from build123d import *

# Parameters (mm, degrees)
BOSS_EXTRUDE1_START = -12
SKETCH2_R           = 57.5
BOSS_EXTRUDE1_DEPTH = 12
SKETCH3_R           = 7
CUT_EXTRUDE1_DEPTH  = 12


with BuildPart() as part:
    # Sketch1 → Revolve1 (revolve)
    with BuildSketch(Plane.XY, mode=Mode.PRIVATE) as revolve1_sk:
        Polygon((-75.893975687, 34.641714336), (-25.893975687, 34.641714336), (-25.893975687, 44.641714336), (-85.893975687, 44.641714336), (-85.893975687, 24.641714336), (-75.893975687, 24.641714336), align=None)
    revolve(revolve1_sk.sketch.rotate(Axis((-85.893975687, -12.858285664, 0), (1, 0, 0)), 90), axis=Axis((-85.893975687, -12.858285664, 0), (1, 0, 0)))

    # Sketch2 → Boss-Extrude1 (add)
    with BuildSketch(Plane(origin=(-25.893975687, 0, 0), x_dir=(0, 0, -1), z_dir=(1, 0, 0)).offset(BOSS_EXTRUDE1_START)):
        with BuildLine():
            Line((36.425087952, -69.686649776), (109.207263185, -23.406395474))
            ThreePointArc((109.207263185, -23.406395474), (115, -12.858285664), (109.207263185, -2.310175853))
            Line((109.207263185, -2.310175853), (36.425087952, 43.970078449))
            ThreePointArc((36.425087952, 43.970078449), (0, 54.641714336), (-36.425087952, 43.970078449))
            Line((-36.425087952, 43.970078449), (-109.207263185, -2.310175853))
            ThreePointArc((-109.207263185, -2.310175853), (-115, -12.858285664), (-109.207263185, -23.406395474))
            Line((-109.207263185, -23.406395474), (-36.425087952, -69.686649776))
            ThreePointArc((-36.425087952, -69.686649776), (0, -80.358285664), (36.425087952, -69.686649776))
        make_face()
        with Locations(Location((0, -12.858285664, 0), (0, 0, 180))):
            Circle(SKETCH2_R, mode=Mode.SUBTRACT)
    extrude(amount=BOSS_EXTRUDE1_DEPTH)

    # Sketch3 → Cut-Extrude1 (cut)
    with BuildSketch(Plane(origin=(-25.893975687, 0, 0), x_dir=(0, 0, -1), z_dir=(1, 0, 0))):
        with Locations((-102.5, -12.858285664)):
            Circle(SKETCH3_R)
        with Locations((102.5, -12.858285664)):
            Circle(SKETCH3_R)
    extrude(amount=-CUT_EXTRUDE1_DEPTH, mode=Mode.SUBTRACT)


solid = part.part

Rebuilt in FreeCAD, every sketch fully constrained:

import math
import FreeCAD as App
import Part
import Sketcher
from FreeCAD import Vector

doc = App.newDocument("Part")
params = doc.addObject("Spreadsheet::Sheet", "Params")
for row, (alias, value) in enumerate([
    ("sketch1_width", "50 mm"),
    ("sketch1_width2", "60 mm"),
    ("revolution_angle", "360 deg"),
    ("sketch2_diameter", "115 mm"),
    ("sketch2_radius", "12.5 mm"),
    ("sketch2_radius2", "67.5 mm"),
    ("pad1_length", "12 mm"),
    ("sketch3_diameter", "14 mm"),
    ("pocket1_length", "12 mm"),
], start=1):
    params.set(f"A{row}", alias)
    params.set(f"B{row}", "=" + value)
    params.setAlias(f"B{row}", alias)

body = doc.addObject("PartDesign::Body", "Body")

# Sketch on XY plane
sketch1 = body.newObject("Sketcher::SketchObject", "Sketch")
sketch1.AttachmentSupport = (doc.getObject("XY_Plane"), [""])
sketch1.MapMode = "FlatFace"
sketch1.addGeometry(Part.LineSegment(Vector(-76, 35, 0), Vector(-26, 35, 0)), False)
sketch1.addGeometry(Part.LineSegment(Vector(-26, 35, 0), Vector(-26, 45, 0)), False)
sketch1.addGeometry(Part.LineSegment(Vector(-26, 45, 0), Vector(-86, 45, 0)), False)
sketch1.addGeometry(Part.LineSegment(Vector(-86, 45, 0), Vector(-86, 25, 0)), False)
sketch1.addGeometry(Part.LineSegment(Vector(-86, 25, 0), Vector(-76, 25, 0)), False)
sketch1.addGeometry(Part.LineSegment(Vector(-76, 25, 0), Vector(-76, 35, 0)), False)
sketch1.addGeometry(Part.LineSegment(Vector(-86, -13, 0), Vector(-26, -13, 0)), True)  # axis
sketch1.addConstraint(Sketcher.Constraint("Coincident", 0, 2, 1, 1))
sketch1.addConstraint(Sketcher.Constraint("Coincident", 1, 2, 2, 1))
sketch1.addConstraint(Sketcher.Constraint("Coincident", 2, 2, 3, 1))
sketch1.addConstraint(Sketcher.Constraint("Coincident", 3, 2, 4, 1))
sketch1.addConstraint(Sketcher.Constraint("Coincident", 4, 2, 5, 1))
sketch1.addConstraint(Sketcher.Constraint("Coincident", 5, 2, 0, 1))
sketch1.addConstraint(Sketcher.Constraint("Horizontal", 0))
sketch1.addConstraint(Sketcher.Constraint("Vertical", 1))
sketch1.addConstraint(Sketcher.Constraint("Horizontal", 2))
sketch1.addConstraint(Sketcher.Constraint("Vertical", 3))
sketch1.addConstraint(Sketcher.Constraint("Horizontal", 4))
sketch1.addConstraint(Sketcher.Constraint("Vertical", 5))
sketch1.addConstraint(Sketcher.Constraint("Horizontal", 6))
sketch1.addConstraint(Sketcher.Constraint("Vertical", 3, 2, 6, 1))
sketch1.addConstraint(Sketcher.Constraint("Vertical", 1, 2, 6, 2))
sketch1.addConstraint(Sketcher.Constraint("Equal", 4, 1))
sketch1.addConstraint(Sketcher.Constraint("Equal", 1, 5))
sketch1.addConstraint(Sketcher.Constraint("DistanceX", 0, 1, 0, 2, 50.0))
sketch1.addConstraint(Sketcher.Constraint("DistanceX", 2, 2, 2, 1, 60.0))
sketch1.addConstraint(Sketcher.Constraint("DistanceY", 6, 1, 3, 2, 37.5))
sketch1.addConstraint(Sketcher.Constraint("DistanceX", 0, 2, -1, 1, 25.893976))
sketch1.addConstraint(Sketcher.Constraint("DistanceY", -1, 1, 0, 2, 34.641714))
sketch1.setExpression("Constraints[17]", "Params.sketch1_width")
sketch1.setExpression("Constraints[18]", "Params.sketch1_width2")
revolution = body.newObject("PartDesign::Revolution", "Revolution")
revolution.Profile = sketch1
revolution.ReferenceAxis = (sketch1, ["Axis0"])
revolution.setExpression("Angle", "Params.revolution_angle")

# Sketch on YZ plane
sketch2 = body.newObject("Sketcher::SketchObject", "Sketch001")
sketch2.AttachmentSupport = (doc.getObject("YZ_Plane"), [""])
sketch2.MapMode = "FlatFace"
sketch2.AttachmentOffset = App.Placement(Vector(0, 0, -37.893976), App.Rotation())
sketch2.addGeometry(Part.LineSegment(Vector(-70, -36, 0), Vector(-23, -109, 0)), False)
sketch2.addGeometry(Part.ArcOfCircle(Part.Circle(Vector(-13, -102, 0), Vector(0, 0, 1), 13), math.radians(-148), math.radians(-32)), False)
sketch2.addGeometry(Part.LineSegment(Vector(-2, -109, 0), Vector(44, -36, 0)), False)
sketch2.addGeometry(Part.ArcOfCircle(Part.Circle(Vector(-13, 0, 0), Vector(0, 0, 1), 68), math.radians(-33), math.radians(33)), False)
sketch2.addGeometry(Part.LineSegment(Vector(44, 36, 0), Vector(-2, 109, 0)), False)
sketch2.addGeometry(Part.ArcOfCircle(Part.Circle(Vector(-13, 102, 0), Vector(0, 0, 1), 13), math.radians(32), math.radians(148)), False)
sketch2.addGeometry(Part.LineSegment(Vector(-23, 109, 0), Vector(-70, 36, 0)), False)
sketch2.addGeometry(Part.ArcOfCircle(Part.Circle(Vector(-13, 0, 0), Vector(0, 0, 1), 67), math.radians(147), math.radians(213)), False)
sketch2.addGeometry(Part.Circle(Vector(-13, 0, 0), Vector(0, 0, 1), 58), False)
sketch2.addConstraint(Sketcher.Constraint("Tangent", 0, 2, 1, 1))
sketch2.addConstraint(Sketcher.Constraint("Tangent", 1, 2, 2, 1))
sketch2.addConstraint(Sketcher.Constraint("Coincident", 2, 2, 3, 1))
sketch2.addConstraint(Sketcher.Constraint("Coincident", 3, 2, 4, 1))
sketch2.addConstraint(Sketcher.Constraint("Tangent", 4, 2, 5, 1))
sketch2.addConstraint(Sketcher.Constraint("Tangent", 5, 2, 6, 1))
sketch2.addConstraint(Sketcher.Constraint("Coincident", 6, 2, 7, 1))
sketch2.addConstraint(Sketcher.Constraint("Coincident", 7, 2, 0, 1))
sketch2.addConstraint(Sketcher.Constraint("Coincident", 7, 3, 3, 3))
sketch2.addConstraint(Sketcher.Constraint("Coincident", 8, 3, 3, 3))
sketch2.addConstraint(Sketcher.Constraint("Equal", 1, 5))
sketch2.addConstraint(Sketcher.Constraint("Equal", 3, 7))
sketch2.addConstraint(Sketcher.Constraint("Symmetric", 1, 3, 5, 3, -1))
sketch2.addConstraint(Sketcher.Constraint("Symmetric", 2, 2, 3, 2, -1))
sketch2.addConstraint(Sketcher.Constraint("Parallel", 0, 4))
sketch2.addConstraint(Sketcher.Constraint("Parallel", 2, 6))
sketch2.addConstraint(Sketcher.Constraint("Horizontal", 3, 2, 6, 2))
sketch2.addConstraint(Sketcher.Constraint("Diameter", 8, 115.0))
sketch2.addConstraint(Sketcher.Constraint("Radius", 1, 12.5))
sketch2.addConstraint(Sketcher.Constraint("Radius", 3, 67.5))
sketch2.addConstraint(Sketcher.Constraint("DistanceY", 1, 3, 5, 3, 205.0))
sketch2.addConstraint(Sketcher.Constraint("DistanceX", -1, 1, 2, 2, 43.970078))
sketch2.addConstraint(Sketcher.Constraint("DistanceX", 6, 2, -1, 1, 69.68665))
sketch2.setExpression("Constraints[17]", "Params.sketch2_diameter")
sketch2.setExpression("Constraints[18]", "Params.sketch2_radius")
sketch2.setExpression("Constraints[19]", "Params.sketch2_radius2")
pad1 = body.newObject("PartDesign::Pad", "Pad")
pad1.Profile = sketch2
pad1.setExpression("Length", "Params.pad1_length")

# Sketch on YZ plane
sketch3 = body.newObject("Sketcher::SketchObject", "Sketch002")
sketch3.AttachmentSupport = (doc.getObject("YZ_Plane"), [""])
sketch3.MapMode = "FlatFace"
sketch3.AttachmentOffset = App.Placement(Vector(0, 0, -25.893976), App.Rotation())
sketch3.addGeometry(Part.Circle(Vector(-13, 102, 0), Vector(0, 0, 1), 7), False)
sketch3.addGeometry(Part.Circle(Vector(-13, -102, 0), Vector(0, 0, 1), 7), False)
sketch3.addConstraint(Sketcher.Constraint("Equal", 0, 1))
sketch3.addConstraint(Sketcher.Constraint("Symmetric", 0, 3, 1, 3, -1))
sketch3.addConstraint(Sketcher.Constraint("Diameter", 0, 14.0))
sketch3.addConstraint(Sketcher.Constraint("DistanceY", 1, 3, 0, 3, 205.0))
sketch3.addConstraint(Sketcher.Constraint("DistanceX", 0, 3, -1, 1, 12.858286))
sketch3.setExpression("Constraints[2]", "Params.sketch3_diameter")
pocket1 = body.newObject("PartDesign::Pocket", "Pocket")
pocket1.Profile = sketch3
pocket1.setExpression("Length", "Params.pocket1_length")

doc.recompute()
